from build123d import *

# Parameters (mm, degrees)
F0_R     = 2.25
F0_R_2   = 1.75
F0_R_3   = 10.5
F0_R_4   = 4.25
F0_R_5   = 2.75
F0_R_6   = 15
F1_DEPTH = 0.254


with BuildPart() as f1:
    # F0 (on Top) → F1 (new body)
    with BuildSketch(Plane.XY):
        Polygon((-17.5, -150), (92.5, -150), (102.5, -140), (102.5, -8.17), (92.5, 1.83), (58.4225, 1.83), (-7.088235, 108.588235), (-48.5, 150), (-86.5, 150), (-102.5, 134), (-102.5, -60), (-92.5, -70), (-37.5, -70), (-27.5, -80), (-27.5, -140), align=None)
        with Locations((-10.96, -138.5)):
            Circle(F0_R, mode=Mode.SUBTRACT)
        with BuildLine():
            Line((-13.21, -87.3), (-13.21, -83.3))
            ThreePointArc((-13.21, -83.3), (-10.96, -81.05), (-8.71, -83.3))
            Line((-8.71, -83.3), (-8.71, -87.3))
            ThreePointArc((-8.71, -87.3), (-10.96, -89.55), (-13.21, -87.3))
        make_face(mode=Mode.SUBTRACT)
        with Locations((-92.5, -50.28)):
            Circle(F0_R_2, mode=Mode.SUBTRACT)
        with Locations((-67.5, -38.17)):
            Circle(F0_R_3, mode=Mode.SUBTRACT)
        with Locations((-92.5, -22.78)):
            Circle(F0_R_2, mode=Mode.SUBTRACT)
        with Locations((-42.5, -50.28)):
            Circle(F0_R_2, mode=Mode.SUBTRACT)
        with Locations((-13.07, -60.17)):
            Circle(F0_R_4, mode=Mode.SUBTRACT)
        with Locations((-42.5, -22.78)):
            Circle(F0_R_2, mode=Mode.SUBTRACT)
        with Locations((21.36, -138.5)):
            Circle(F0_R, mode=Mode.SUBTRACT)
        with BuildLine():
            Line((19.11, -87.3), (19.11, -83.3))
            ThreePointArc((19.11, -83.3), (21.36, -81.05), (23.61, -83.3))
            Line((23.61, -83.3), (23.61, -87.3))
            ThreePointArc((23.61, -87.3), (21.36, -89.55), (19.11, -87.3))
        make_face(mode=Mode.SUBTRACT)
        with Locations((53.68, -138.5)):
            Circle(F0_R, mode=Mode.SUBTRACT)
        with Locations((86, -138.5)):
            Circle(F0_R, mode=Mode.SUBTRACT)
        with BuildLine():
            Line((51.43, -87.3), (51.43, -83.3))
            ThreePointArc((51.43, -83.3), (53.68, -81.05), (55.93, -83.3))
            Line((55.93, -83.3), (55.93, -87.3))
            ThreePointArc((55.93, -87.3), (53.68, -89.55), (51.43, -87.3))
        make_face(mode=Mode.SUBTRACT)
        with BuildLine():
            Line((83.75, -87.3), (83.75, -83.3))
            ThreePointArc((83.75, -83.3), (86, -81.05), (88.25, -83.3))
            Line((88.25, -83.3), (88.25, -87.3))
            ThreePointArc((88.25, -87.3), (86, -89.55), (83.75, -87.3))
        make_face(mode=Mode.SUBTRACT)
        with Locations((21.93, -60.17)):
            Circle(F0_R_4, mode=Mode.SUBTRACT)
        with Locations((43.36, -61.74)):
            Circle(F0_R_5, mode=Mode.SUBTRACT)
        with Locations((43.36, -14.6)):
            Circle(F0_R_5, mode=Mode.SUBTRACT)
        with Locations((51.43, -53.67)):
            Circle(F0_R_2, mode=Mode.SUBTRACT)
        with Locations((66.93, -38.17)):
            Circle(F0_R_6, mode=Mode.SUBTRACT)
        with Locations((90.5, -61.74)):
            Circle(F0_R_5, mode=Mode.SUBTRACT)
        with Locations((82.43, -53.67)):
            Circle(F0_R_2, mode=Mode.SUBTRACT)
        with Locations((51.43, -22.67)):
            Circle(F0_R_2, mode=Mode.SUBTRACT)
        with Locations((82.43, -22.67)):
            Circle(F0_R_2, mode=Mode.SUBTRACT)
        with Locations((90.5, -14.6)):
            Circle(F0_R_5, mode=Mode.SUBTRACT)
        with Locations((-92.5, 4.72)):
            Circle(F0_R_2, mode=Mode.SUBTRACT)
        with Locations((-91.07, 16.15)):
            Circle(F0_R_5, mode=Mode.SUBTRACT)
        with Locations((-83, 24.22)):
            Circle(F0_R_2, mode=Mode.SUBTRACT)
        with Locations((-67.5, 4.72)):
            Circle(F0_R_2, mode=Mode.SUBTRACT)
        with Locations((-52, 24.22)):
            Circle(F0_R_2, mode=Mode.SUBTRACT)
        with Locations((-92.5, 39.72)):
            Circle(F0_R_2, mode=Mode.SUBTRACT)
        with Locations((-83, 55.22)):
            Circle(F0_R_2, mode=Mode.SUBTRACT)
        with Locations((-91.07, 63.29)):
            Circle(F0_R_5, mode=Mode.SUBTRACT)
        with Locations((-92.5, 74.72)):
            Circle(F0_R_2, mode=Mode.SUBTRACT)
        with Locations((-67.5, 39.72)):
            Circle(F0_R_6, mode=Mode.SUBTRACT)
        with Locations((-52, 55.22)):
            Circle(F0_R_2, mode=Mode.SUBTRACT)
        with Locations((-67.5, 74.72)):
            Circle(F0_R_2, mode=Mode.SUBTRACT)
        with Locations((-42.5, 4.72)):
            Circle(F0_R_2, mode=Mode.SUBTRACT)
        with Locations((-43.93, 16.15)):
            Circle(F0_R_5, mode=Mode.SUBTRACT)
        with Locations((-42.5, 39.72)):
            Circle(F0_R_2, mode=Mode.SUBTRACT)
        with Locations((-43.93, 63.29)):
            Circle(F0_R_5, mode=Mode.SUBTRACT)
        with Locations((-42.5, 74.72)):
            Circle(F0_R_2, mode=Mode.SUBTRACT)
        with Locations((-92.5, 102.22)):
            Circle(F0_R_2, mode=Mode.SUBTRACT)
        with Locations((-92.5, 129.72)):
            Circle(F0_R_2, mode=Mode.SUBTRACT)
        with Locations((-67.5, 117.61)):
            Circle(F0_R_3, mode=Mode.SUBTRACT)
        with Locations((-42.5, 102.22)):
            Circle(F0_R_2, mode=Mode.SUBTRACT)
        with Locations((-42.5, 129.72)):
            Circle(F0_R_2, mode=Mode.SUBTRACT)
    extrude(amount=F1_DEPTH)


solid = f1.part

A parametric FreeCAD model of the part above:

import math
import FreeCAD as App
import Part
import Sketcher


def add_polygon(sketch, points):
    """Adds a closed chain of lines whose ends are joined by coincident constraints."""
    first, n = sketch.GeometryCount, len(points)
    for a, b in zip(points, points[1:] + points[:1]):
        sketch.addGeometry(Part.LineSegment(App.Vector(*a, 0), App.Vector(*b, 0)), False)
    for i in range(n):
        sketch.addConstraint(Sketcher.Constraint("Coincident", first + i, 2, first + (i + 1) % n, 1))

doc = App.newDocument("Part")
body = doc.addObject("PartDesign::Body", "Body")

# Sketch on XY plane
sketch1 = doc.addObject("Sketcher::SketchObject", "Sketch")
body.addObject(sketch1)
sketch1.AttachmentSupport = (doc.XY_Plane, [""])
sketch1.MapMode = "FlatFace"
add_polygon(sketch1, [(-17.5, -150), (92.5, -150), (102.5, -140), (102.5, -8.2), (92.5, 1.8), (58.4, 1.8), (-7.1, 108.6), (-48.5, 150), (-86.5, 150), (-102.5, 134), (-102.5, -60), (-92.5, -70), (-37.5, -70), (-27.5, -80), (-27.5, -140)])  # lines 0-14
sketch1.addGeometry(Part.Circle(App.Vector(-11, -138.5, 0), App.Vector(0, 0, 1), 2.2), False)  # 15
sketch1.addGeometry(Part.ArcOfCircle(Part.Circle(App.Vector(-11, -87.3, 0), App.Vector(0, 0, 1), 2.2), math.radians(180), math.radians(360)), False)  # 16
sketch1.addGeometry(Part.LineSegment(App.Vector(-13.2, -87.3, 0), App.Vector(-13.2, -83.3, 0)), False)  # 17
sketch1.addGeometry(Part.ArcOfCircle(Part.Circle(App.Vector(-11, -83.3, 0), App.Vector(0, 0, 1), 2.2), math.radians(0), math.radians(180)), False)  # 18
sketch1.addGeometry(Part.LineSegment(App.Vector(-8.7, -83.3, 0), App.Vector(-8.7, -87.3, 0)), False)  # 19
sketch1.addGeometry(Part.Circle(App.Vector(-92.5, -50.3, 0), App.Vector(0, 0, 1), 1.8), False)  # 20
sketch1.addGeometry(Part.Circle(App.Vector(-92.5, -22.8, 0), App.Vector(0, 0, 1), 1.8), False)  # 21
sketch1.addGeometry(Part.Circle(App.Vector(-67.5, -38.2, 0), App.Vector(0, 0, 1), 10.5), False)  # 22
sketch1.addGeometry(Part.Circle(App.Vector(-42.5, -50.3, 0), App.Vector(0, 0, 1), 1.8), False)  # 23
sketch1.addGeometry(Part.Circle(App.Vector(-13.1, -60.2, 0), App.Vector(0, 0, 1), 4.2), False)  # 24
sketch1.addGeometry(Part.Circle(App.Vector(-42.5, -22.8, 0), App.Vector(0, 0, 1), 1.8), False)  # 25
sketch1.addGeometry(Part.Circle(App.Vector(21.4, -138.5, 0), App.Vector(0, 0, 1), 2.2), False)  # 26
sketch1.addGeometry(Part.ArcOfCircle(Part.Circle(App.Vector(21.4, -87.3, 0), App.Vector(0, 0, 1), 2.2), math.radians(180), math.radians(360)), False)  # 27
sketch1.addGeometry(Part.LineSegment(App.Vector(19.1, -87.3, 0), App.Vector(19.1, -83.3, 0)), False)  # 28
sketch1.addGeometry(Part.ArcOfCircle(Part.Circle(App.Vector(21.4, -83.3, 0), App.Vector(0, 0, 1), 2.2), math.radians(0), math.radians(180)), False)  # 29
sketch1.addGeometry(Part.LineSegment(App.Vector(23.6, -83.3, 0), App.Vector(23.6, -87.3, 0)), False)  # 30
sketch1.addGeometry(Part.Circle(App.Vector(53.7, -138.5, 0), App.Vector(0, 0, 1), 2.2), False)  # 31
sketch1.addGeometry(Part.Circle(App.Vector(86, -138.5, 0), App.Vector(0, 0, 1), 2.2), False)  # 32
sketch1.addGeometry(Part.ArcOfCircle(Part.Circle(App.Vector(53.7, -87.3, 0), App.Vector(0, 0, 1), 2.2), math.radians(180), math.radians(360)), False)  # 33
sketch1.addGeometry(Part.LineSegment(App.Vector(51.4, -87.3, 0), App.Vector(51.4, -83.3, 0)), False)  # 34
sketch1.addGeometry(Part.ArcOfCircle(Part.Circle(App.Vector(53.7, -83.3, 0), App.Vector(0, 0, 1), 2.2), math.radians(0), math.radians(180)), False)  # 35
sketch1.addGeometry(Part.LineSegment(App.Vector(55.9, -83.3, 0), App.Vector(55.9, -87.3, 0)), False)  # 36
sketch1.addGeometry(Part.ArcOfCircle(Part.Circle(App.Vector(86, -87.3, 0), App.Vector(0, 0, 1), 2.2), math.radians(180), math.radians(360)), False)  # 37
sketch1.addGeometry(Part.LineSegment(App.Vector(83.8, -87.3, 0), App.Vector(83.8, -83.3, 0)), False)  # 38
sketch1.addGeometry(Part.ArcOfCircle(Part.Circle(App.Vector(86, -83.3, 0), App.Vector(0, 0, 1), 2.2), math.radians(0), math.radians(180)), False)  # 39
sketch1.addGeometry(Part.LineSegment(App.Vector(88.2, -83.3, 0), App.Vector(88.2, -87.3, 0)), False)  # 40
sketch1.addGeometry(Part.Circle(App.Vector(21.9, -60.2, 0), App.Vector(0, 0, 1), 4.2), False)  # 41
sketch1.addGeometry(Part.Circle(App.Vector(43.4, -61.7, 0), App.Vector(0, 0, 1), 2.8), False)  # 42
sketch1.addGeometry(Part.Circle(App.Vector(43.4, -14.6, 0), App.Vector(0, 0, 1), 2.8), False)  # 43
sketch1.addGeometry(Part.Circle(App.Vector(51.4, -53.7, 0), App.Vector(0, 0, 1), 1.8), False)  # 44
sketch1.addGeometry(Part.Circle(App.Vector(90.5, -61.7, 0), App.Vector(0, 0, 1), 2.8), False)  # 45
sketch1.addGeometry(Part.Circle(App.Vector(82.4, -53.7, 0), App.Vector(0, 0, 1), 1.8), False)  # 46
sketch1.addGeometry(Part.Circle(App.Vector(51.4, -22.7, 0), App.Vector(0, 0, 1), 1.8), False)  # 47
sketch1.addGeometry(Part.Circle(App.Vector(66.9, -38.2, 0), App.Vector(0, 0, 1), 15), False)  # 48
sketch1.addGeometry(Part.Circle(App.Vector(82.4, -22.7, 0), App.Vector(0, 0, 1), 1.8), False)  # 49
sketch1.addGeometry(Part.Circle(App.Vector(90.5, -14.6, 0), App.Vector(0, 0, 1), 2.8), False)  # 50
sketch1.addGeometry(Part.Circle(App.Vector(-92.5, 4.7, 0), App.Vector(0, 0, 1), 1.8), False)  # 51
sketch1.addGeometry(Part.Circle(App.Vector(-91.1, 16.1, 0), App.Vector(0, 0, 1), 2.8), False)  # 52
sketch1.addGeometry(Part.Circle(App.Vector(-83, 24.2, 0), App.Vector(0, 0, 1), 1.8), False)  # 53
sketch1.addGeometry(Part.Circle(App.Vector(-67.5, 4.7, 0), App.Vector(0, 0, 1), 1.8), False)  # 54
sketch1.addGeometry(Part.Circle(App.Vector(-52, 24.2, 0), App.Vector(0, 0, 1), 1.8), False)  # 55
sketch1.addGeometry(Part.Circle(App.Vector(-92.5, 39.7, 0), App.Vector(0, 0, 1), 1.8), False)  # 56
sketch1.addGeometry(Part.Circle(App.Vector(-91.1, 63.3, 0), App.Vector(0, 0, 1), 2.8), False)  # 57
sketch1.addGeometry(Part.Circle(App.Vector(-83, 55.2, 0), App.Vector(0, 0, 1), 1.8), False)  # 58
sketch1.addGeometry(Part.Circle(App.Vector(-67.5, 39.7, 0), App.Vector(0, 0, 1), 15), False)  # 59
sketch1.addGeometry(Part.Circle(App.Vector(-52, 55.2, 0), App.Vector(0, 0, 1), 1.8), False)  # 60
sketch1.addGeometry(Part.Circle(App.Vector(-42.5, 4.7, 0), App.Vector(0, 0, 1), 1.8), False)  # 61
sketch1.addGeometry(Part.Circle(App.Vector(-43.9, 16.1, 0), App.Vector(0, 0, 1), 2.8), False)  # 62
sketch1.addGeometry(Part.Circle(App.Vector(-42.5, 39.7, 0), App.Vector(0, 0, 1), 1.8), False)  # 63
sketch1.addGeometry(Part.Circle(App.Vector(-43.9, 63.3, 0), App.Vector(0, 0, 1), 2.8), False)  # 64
sketch1.addGeometry(Part.Circle(App.Vector(-92.5, 74.7, 0), App.Vector(0, 0, 1), 1.8), False)  # 65
sketch1.addGeometry(Part.Circle(App.Vector(-67.5, 74.7, 0), App.Vector(0, 0, 1), 1.8), False)  # 66
sketch1.addGeometry(Part.Circle(App.Vector(-92.5, 102.2, 0), App.Vector(0, 0, 1), 1.8), False)  # 67
sketch1.addGeometry(Part.Circle(App.Vector(-92.5, 129.7, 0), App.Vector(0, 0, 1), 1.8), False)  # 68
sketch1.addGeometry(Part.Circle(App.Vector(-67.5, 117.6, 0), App.Vector(0, 0, 1), 10.5), False)  # 69
sketch1.addGeometry(Part.Circle(App.Vector(-42.5, 74.7, 0), App.Vector(0, 0, 1), 1.8), False)  # 70
sketch1.addGeometry(Part.Circle(App.Vector(-42.5, 102.2, 0), App.Vector(0, 0, 1), 1.8), False)  # 71
sketch1.addGeometry(Part.Circle(App.Vector(-42.5, 129.7, 0), App.Vector(0, 0, 1), 1.8), False)  # 72
sketch1.addConstraint(Sketcher.Constraint("Tangent", 16, 1, 17, 1))
sketch1.addConstraint(Sketcher.Constraint("Tangent", 17, 2, 18, 2))
sketch1.addConstraint(Sketcher.Constraint("Tangent", 18, 1, 19, 1))
sketch1.addConstraint(Sketcher.Constraint("Tangent", 19, 2, 16, 2))
sketch1.addConstraint(Sketcher.Constraint("Tangent", 27, 1, 28, 1))
sketch1.addConstraint(Sketcher.Constraint("Tangent", 28, 2, 29, 2))
sketch1.addConstraint(Sketcher.Constraint("Tangent", 29, 1, 30, 1))
sketch1.addConstraint(Sketcher.Constraint("Tangent", 30, 2, 27, 2))
sketch1.addConstraint(Sketcher.Constraint("Tangent", 33, 1, 34, 1))
sketch1.addConstraint(Sketcher.Constraint("Tangent", 34, 2, 35, 2))
sketch1.addConstraint(Sketcher.Constraint("Tangent", 35, 1, 36, 1))
sketch1.addConstraint(Sketcher.Constraint("Tangent", 36, 2, 33, 2))
sketch1.addConstraint(Sketcher.Constraint("Tangent", 37, 1, 38, 1))
sketch1.addConstraint(Sketcher.Constraint("Tangent", 38, 2, 39, 2))
sketch1.addConstraint(Sketcher.Constraint("Tangent", 39, 1, 40, 1))
sketch1.addConstraint(Sketcher.Constraint("Tangent", 40, 2, 37, 2))
sketch1.addConstraint(Sketcher.Constraint("Horizontal", 0))
sketch1.addConstraint(Sketcher.Constraint("Vertical", 2))
sketch1.addConstraint(Sketcher.Constraint("Horizontal", 4))
sketch1.addConstraint(Sketcher.Constraint("Horizontal", 7))
sketch1.addConstraint(Sketcher.Constraint("Vertical", 9))
sketch1.addConstraint(Sketcher.Constraint("Horizontal", 11))
sketch1.addConstraint(Sketcher.Constraint("Vertical", 13))
sketch1.addConstraint(Sketcher.Constraint("Vertical", 17))
sketch1.addConstraint(Sketcher.Constraint("Vertical", 19))
sketch1.addConstraint(Sketcher.Constraint("Vertical", 28))
sketch1.addConstraint(Sketcher.Constraint("Vertical", 30))
sketch1.addConstraint(Sketcher.Constraint("Vertical", 34))
sketch1.addConstraint(Sketcher.Constraint("Vertical", 36))
sketch1.addConstraint(Sketcher.Constraint("Vertical", 38))
sketch1.addConstraint(Sketcher.Constraint("Vertical", 40))
sketch1.addConstraint(Sketcher.Constraint("Equal", 15, 16))
sketch1.addConstraint(Sketcher.Constraint("Equal", 20, 21))
sketch1.addConstraint(Sketcher.Constraint("Equal", 21, 23))
sketch1.addConstraint(Sketcher.Constraint("Equal", 23, 25))
sketch1.addConstraint(Sketcher.Constraint("Equal", 18, 26))
sketch1.addConstraint(Sketcher.Constraint("Equal", 26, 27))
sketch1.addConstraint(Sketcher.Constraint("Equal", 29, 31))
sketch1.addConstraint(Sketcher.Constraint("Equal", 31, 32))
sketch1.addConstraint(Sketcher.Constraint("Equal", 32, 33))
sketch1.addConstraint(Sketcher.Constraint("Equal", 35, 37))
sketch1.addConstraint(Sketcher.Constraint("Equal", 24, 41))
sketch1.addConstraint(Sketcher.Constraint("Equal", 42, 43))
sketch1.addConstraint(Sketcher.Constraint("Equal", 25, 44))
sketch1.addConstraint(Sketcher.Constraint("Equal", 43, 45))
sketch1.addConstraint(Sketcher.Constraint("Equal", 44, 46))
sketch1.addConstraint(Sketcher.Constraint("Equal", 46, 47))
sketch1.addConstraint(Sketcher.Constraint("Equal", 47, 49))
sketch1.addConstraint(Sketcher.Constraint("Equal", 45, 50))
sketch1.addConstraint(Sketcher.Constraint("Equal", 49, 51))
sketch1.addConstraint(Sketcher.Constraint("Equal", 50, 52))
sketch1.addConstraint(Sketcher.Constraint("Equal", 51, 53))
sketch1.addConstraint(Sketcher.Constraint("Equal", 53, 54))
sketch1.addConstraint(Sketcher.Constraint("Equal", 54, 55))
sketch1.addConstraint(Sketcher.Constraint("Equal", 55, 56))
sketch1.addConstraint(Sketcher.Constraint("Equal", 52, 57))
sketch1.addConstraint(Sketcher.Constraint("Equal", 56, 58))
sketch1.addConstraint(Sketcher.Constraint("Equal", 48, 59))
sketch1.addConstraint(Sketcher.Constraint("Equal", 58, 60))
sketch1.addConstraint(Sketcher.Constraint("Equal", 60, 61))
sketch1.addConstraint(Sketcher.Constraint("Equal", 57, 62))
sketch1.addConstraint(Sketcher.Constraint("Equal", 61, 63))
sketch1.addConstraint(Sketcher.Constraint("Equal", 62, 64))
sketch1.addConstraint(Sketcher.Constraint("Equal", 63, 65))
sketch1.addConstraint(Sketcher.Constraint("Equal", 65, 66))
sketch1.addConstraint(Sketcher.Constraint("Equal", 66, 67))
sketch1.addConstraint(Sketcher.Constraint("Equal", 67, 68))
sketch1.addConstraint(Sketcher.Constraint("Equal", 22, 69))
sketch1.addConstraint(Sketcher.Constraint("Equal", 68, 70))
sketch1.addConstraint(Sketcher.Constraint("Equal", 70, 71))
sketch1.addConstraint(Sketcher.Constraint("Equal", 71, 72))
sketch1.addConstraint(Sketcher.Constraint("Perpendicular", 1, 3))
sketch1.addConstraint(Sketcher.Constraint("Parallel", 3, 6))
sketch1.addConstraint(Sketcher.Constraint("Perpendicular", 6, 8))
sketch1.addConstraint(Sketcher.Constraint("Perpendicular", 8, 10))
sketch1.addConstraint(Sketcher.Constraint("Parallel", 10, 12))
sketch1.addConstraint(Sketcher.Constraint("Parallel", 12, 14))
sketch1.addConstraint(Sketcher.Constraint("Horizontal", 20, 3, 23, 3))
sketch1.addConstraint(Sketcher.Constraint("Horizontal", 21, 3, 25, 3))
sketch1.addConstraint(Sketcher.Constraint("Horizontal", 15, 3, 26, 3))
sketch1.addConstraint(Sketcher.Constraint("Horizontal", 16, 3, 27, 3))
sketch1.addConstraint(Sketcher.Constraint("Horizontal", 18, 3, 29, 3))
sketch1.addConstraint(Sketcher.Constraint("Horizontal", 26, 3, 31, 3))
sketch1.addConstraint(Sketcher.Constraint("Horizontal", 31, 3, 32, 3))
sketch1.addConstraint(Sketcher.Constraint("Horizontal", 27, 3, 33, 3))
sketch1.addConstraint(Sketcher.Constraint("Horizontal", 29, 3, 35, 3))
sketch1.addConstraint(Sketcher.Constraint("Horizontal", 33, 3, 37, 3))
sketch1.addConstraint(Sketcher.Constraint("Horizontal", 35, 3, 39, 3))
sketch1.addConstraint(Sketcher.Constraint("Horizontal", 24, 3, 41, 3))
sketch1.addConstraint(Sketcher.Constraint("Horizontal", 42, 3, 45, 3))
sketch1.addConstraint(Sketcher.Constraint("Horizontal", 44, 3, 46, 3))
sketch1.addConstraint(Sketcher.Constraint("Horizontal", 22, 3, 48, 3))
sketch1.addConstraint(Sketcher.Constraint("Horizontal", 47, 3, 49, 3))
sketch1.addConstraint(Sketcher.Constraint("Horizontal", 43, 3, 50, 3))
sketch1.addConstraint(Sketcher.Constraint("Horizontal", 51, 3, 54, 3))
sketch1.addConstraint(Sketcher.Constraint("Horizontal", 53, 3, 55, 3))
sketch1.addConstraint(Sketcher.Constraint("Horizontal", 56, 3, 59, 3))
sketch1.addConstraint(Sketcher.Constraint("Horizontal", 58, 3, 60, 3))
sketch1.addConstraint(Sketcher.Constraint("Horizontal", 54, 3, 61, 3))
sketch1.addConstraint(Sketcher.Constraint("Horizontal", 52, 3, 62, 3))
sketch1.addConstraint(Sketcher.Constraint("Horizontal", 59, 3, 63, 3))
sketch1.addConstraint(Sketcher.Constraint("Horizontal", 57, 3, 64, 3))
sketch1.addConstraint(Sketcher.Constraint("Horizontal", 65, 3, 66, 3))
sketch1.addConstraint(Sketcher.Constraint("Horizontal", 66, 3, 70, 3))
sketch1.addConstraint(Sketcher.Constraint("Horizontal", 67, 3, 71, 3))
sketch1.addConstraint(Sketcher.Constraint("Horizontal", 68, 3, 72, 3))
sketch1.addConstraint(Sketcher.Constraint("Horizontal", 1, 2, 13, 2))
sketch1.addConstraint(Sketcher.Constraint("Vertical", 15, 3, 16, 3))
sketch1.addConstraint(Sketcher.Constraint("Vertical", 20, 3, 21, 3))
sketch1.addConstraint(Sketcher.Constraint("Vertical", 23, 3, 25, 3))
sketch1.addConstraint(Sketcher.Constraint("Vertical", 26, 3, 27, 3))
sketch1.addConstraint(Sketcher.Constraint("Vertical", 31, 3, 33, 3))
sketch1.addConstraint(Sketcher.Constraint("Vertical", 32, 3, 37, 3))
sketch1.addConstraint(Sketcher.Constraint("Vertical", 42, 3, 43, 3))
sketch1.addConstraint(Sketcher.Constraint("Vertical", 44, 3, 47, 3))
sketch1.addConstraint(Sketcher.Constraint("Vertical", 46, 3, 49, 3))
sketch1.addConstraint(Sketcher.Constraint("Vertical", 45, 3, 50, 3))
sketch1.addConstraint(Sketcher.Constraint("Vertical", 21, 3, 51, 3))
sketch1.addConstraint(Sketcher.Constraint("Vertical", 22, 3, 54, 3))
sketch1.addConstraint(Sketcher.Constraint("Vertical", 51, 3, 56, 3))
sketch1.addConstraint(Sketcher.Constraint("Vertical", 52, 3, 57, 3))
sketch1.addConstraint(Sketcher.Constraint("Vertical", 53, 3, 58, 3))
sketch1.addConstraint(Sketcher.Constraint("Vertical", 54, 3, 59, 3))
sketch1.addConstraint(Sketcher.Constraint("Vertical", 55, 3, 60, 3))
sketch1.addConstraint(Sketcher.Constraint("Vertical", 25, 3, 61, 3))
sketch1.addConstraint(Sketcher.Constraint("Vertical", 61, 3, 63, 3))
sketch1.addConstraint(Sketcher.Constraint("Vertical", 62, 3, 64, 3))
sketch1.addConstraint(Sketcher.Constraint("Vertical", 56, 3, 65, 3))
sketch1.addConstraint(Sketcher.Constraint("Vertical", 59, 3, 66, 3))
sketch1.addConstraint(Sketcher.Constraint("Vertical", 65, 3, 67, 3))
sketch1.addConstraint(Sketcher.Constraint("Vertical", 67, 3, 68, 3))
sketch1.addConstraint(Sketcher.Constraint("Vertical", 66, 3, 69, 3))
sketch1.addConstraint(Sketcher.Constraint("Vertical", 63, 3, 70, 3))
sketch1.addConstraint(Sketcher.Constraint("Vertical", 70, 3, 71, 3))
sketch1.addConstraint(Sketcher.Constraint("Vertical", 71, 3, 72, 3))
sketch1.addConstraint(Sketcher.Constraint("Vertical", 0, 2, 3, 2))
sketch1.addConstraint(Sketcher.Constraint("Vertical", 68, 3, 10, 2))
sketch1.addConstraint(Sketcher.Constraint("Vertical", 47, 3, 33, 1))
sketch1.addConstraint(Sketcher.Constraint("Equal", 1, 3))
sketch1.addConstraint(Sketcher.Constraint("Equal", 3, 10))
sketch1.addConstraint(Sketcher.Constraint("Equal", 10, 12))
sketch1.addConstraint(Sketcher.Constraint("Diameter", 22, 21.0))
sketch1.addConstraint(Sketcher.Constraint("Diameter", 48, 30.0))
sketch1.addConstraint(Sketcher.Constraint("Diameter", 15, 4.5))
sketch1.addConstraint(Sketcher.Constraint("Diameter", 20, 3.5))
sketch1.addConstraint(Sketcher.Constraint("Diameter", 24, 8.5))
sketch1.addConstraint(Sketcher.Constraint("Diameter", 42, 5.5))
sketch1.addConstraint(Sketcher.Constraint("DistanceX", 0, 1, 0, 2, 110.0))
sketch1.addConstraint(Sketcher.Constraint("DistanceX", 7, 2, 7, 1, 38.0))
sketch1.addConstraint(Sketcher.Constraint("DistanceX", 11, 1, 11, 2, 55.0))
sketch1.addConstraint(Sketcher.Constraint("DistanceY", 9, 2, 9, 1, 194.0))
sketch1.addConstraint(Sketcher.Constraint("DistanceY", 13, 2, 13, 1, 60.0))
sketch1.addConstraint(Sketcher.Constraint("DistanceY", 17, 1, 17, 2, 4.0))
sketch1.addConstraint(Sketcher.Constraint("DistanceX", -1, 1, 32, 3, 86.0))
sketch1.addConstraint(Sketcher.Constraint("DistanceX", 53, 3, -1, 1, 83.0))
sketch1.addConstraint(Sketcher.Constraint("DistanceX", 55, 3, -1, 1, 52.0))
sketch1.addConstraint(Sketcher.Constraint("DistanceY", 0, 2, -1, 1, 150.0))
sketch1.addConstraint(Sketcher.Constraint("DistanceY", 1, 2, -1, 1, 140.0))
sketch1.addConstraint(Sketcher.Constraint("DistanceY", -1, 1, 6, 2, 150.0))
sketch1.addConstraint(Sketcher.Constraint("DistanceY", 2, 1, 2, 2, 131.83))
sketch1.addConstraint(Sketcher.Constraint("DistanceY", 15, 3, -1, 1, 138.5))
sketch1.addConstraint(Sketcher.Constraint("DistanceY", 16, 3, -1, 1, 87.3))
sketch1.addConstraint(Sketcher.Constraint("DistanceX", 20, 3, -1, 1, 92.5))
sketch1.addConstraint(Sketcher.Constraint("DistanceX", 22, 3, -1, 1, 67.5))
sketch1.addConstraint(Sketcher.Constraint("DistanceX", 23, 3, -1, 1, 42.5))
sketch1.addConstraint(Sketcher.Constraint("DistanceY", 43, 3, -1, 1, 14.6))
sketch1.addConstraint(Sketcher.Constraint("DistanceX", -1, 1, 45, 3, 90.5))
sketch1.addConstraint(Sketcher.Constraint("DistanceX", 15, 3, -1, 1, 10.96))
sketch1.addConstraint(Sketcher.Constraint("DistanceY", 20, 3, -1, 1, 50.28))
sketch1.addConstraint(Sketcher.Constraint("DistanceY", 21, 3, -1, 1, 22.78))
sketch1.addConstraint(Sketcher.Constraint("DistanceY", 22, 3, -1, 1, 38.17))
sketch1.addConstraint(Sketcher.Constraint("DistanceX", 24, 3, -1, 1, 13.07))
sketch1.addConstraint(Sketcher.Constraint("DistanceY", 24, 3, -1, 1, 60.17))
sketch1.addConstraint(Sketcher.Constraint("DistanceX", -1, 1, 26, 3, 21.36))
sketch1.addConstraint(Sketcher.Constraint("DistanceX", -1, 1, 31, 3, 53.68))
sketch1.addConstraint(Sketcher.Constraint("DistanceX", -1, 1, 41, 3, 21.93))
sketch1.addConstraint(Sketcher.Constraint("DistanceX", -1, 1, 42, 3, 43.36))
sketch1.addConstraint(Sketcher.Constraint("DistanceY", 42, 3, -1, 1, 61.74))
sketch1.addConstraint(Sketcher.Constraint("DistanceY", 44, 3, -1, 1, 53.67))
sketch1.addConstraint(Sketcher.Constraint("DistanceX", -1, 1, 46, 3, 82.43))
sketch1.addConstraint(Sketcher.Constraint("DistanceY", 47, 3, -1, 1, 22.67))
sketch1.addConstraint(Sketcher.Constraint("DistanceX", -1, 1, 48, 3, 66.93))
sketch1.addConstraint(Sketcher.Constraint("DistanceY", -1, 1, 51, 3, 4.72))
sketch1.addConstraint(Sketcher.Constraint("DistanceX", 52, 3, -1, 1, 91.07))
sketch1.addConstraint(Sketcher.Constraint("DistanceY", -1, 1, 52, 3, 16.15))
sketch1.addConstraint(Sketcher.Constraint("DistanceY", -1, 1, 53, 3, 24.22))
sketch1.addConstraint(Sketcher.Constraint("DistanceY", -1, 1, 56, 3, 39.72))
sketch1.addConstraint(Sketcher.Constraint("DistanceY", -1, 1, 57, 3, 63.29))
sketch1.addConstraint(Sketcher.Constraint("DistanceY", -1, 1, 58, 3, 55.22))
sketch1.addConstraint(Sketcher.Constraint("DistanceX", 62, 3, -1, 1, 43.93))
sketch1.addConstraint(Sketcher.Constraint("DistanceY", -1, 1, 65, 3, 74.72))
sketch1.addConstraint(Sketcher.Constraint("DistanceY", -1, 1, 67, 3, 102.22))
sketch1.addConstraint(Sketcher.Constraint("DistanceY", -1, 1, 68, 3, 129.72))
sketch1.addConstraint(Sketcher.Constraint("DistanceY", -1, 1, 69, 3, 117.61))
sketch1.addConstraint(Sketcher.Constraint("DistanceX", 4, 2, 4, 1, 34.0775))
sketch1.addConstraint(Sketcher.Constraint("Distance", 6, 58.56508))
pad1 = doc.addObject("PartDesign::Pad", "Pad")
body.addObject(pad1)
pad1.Profile = sketch1
pad1.Length = 0.254

doc.recompute()
